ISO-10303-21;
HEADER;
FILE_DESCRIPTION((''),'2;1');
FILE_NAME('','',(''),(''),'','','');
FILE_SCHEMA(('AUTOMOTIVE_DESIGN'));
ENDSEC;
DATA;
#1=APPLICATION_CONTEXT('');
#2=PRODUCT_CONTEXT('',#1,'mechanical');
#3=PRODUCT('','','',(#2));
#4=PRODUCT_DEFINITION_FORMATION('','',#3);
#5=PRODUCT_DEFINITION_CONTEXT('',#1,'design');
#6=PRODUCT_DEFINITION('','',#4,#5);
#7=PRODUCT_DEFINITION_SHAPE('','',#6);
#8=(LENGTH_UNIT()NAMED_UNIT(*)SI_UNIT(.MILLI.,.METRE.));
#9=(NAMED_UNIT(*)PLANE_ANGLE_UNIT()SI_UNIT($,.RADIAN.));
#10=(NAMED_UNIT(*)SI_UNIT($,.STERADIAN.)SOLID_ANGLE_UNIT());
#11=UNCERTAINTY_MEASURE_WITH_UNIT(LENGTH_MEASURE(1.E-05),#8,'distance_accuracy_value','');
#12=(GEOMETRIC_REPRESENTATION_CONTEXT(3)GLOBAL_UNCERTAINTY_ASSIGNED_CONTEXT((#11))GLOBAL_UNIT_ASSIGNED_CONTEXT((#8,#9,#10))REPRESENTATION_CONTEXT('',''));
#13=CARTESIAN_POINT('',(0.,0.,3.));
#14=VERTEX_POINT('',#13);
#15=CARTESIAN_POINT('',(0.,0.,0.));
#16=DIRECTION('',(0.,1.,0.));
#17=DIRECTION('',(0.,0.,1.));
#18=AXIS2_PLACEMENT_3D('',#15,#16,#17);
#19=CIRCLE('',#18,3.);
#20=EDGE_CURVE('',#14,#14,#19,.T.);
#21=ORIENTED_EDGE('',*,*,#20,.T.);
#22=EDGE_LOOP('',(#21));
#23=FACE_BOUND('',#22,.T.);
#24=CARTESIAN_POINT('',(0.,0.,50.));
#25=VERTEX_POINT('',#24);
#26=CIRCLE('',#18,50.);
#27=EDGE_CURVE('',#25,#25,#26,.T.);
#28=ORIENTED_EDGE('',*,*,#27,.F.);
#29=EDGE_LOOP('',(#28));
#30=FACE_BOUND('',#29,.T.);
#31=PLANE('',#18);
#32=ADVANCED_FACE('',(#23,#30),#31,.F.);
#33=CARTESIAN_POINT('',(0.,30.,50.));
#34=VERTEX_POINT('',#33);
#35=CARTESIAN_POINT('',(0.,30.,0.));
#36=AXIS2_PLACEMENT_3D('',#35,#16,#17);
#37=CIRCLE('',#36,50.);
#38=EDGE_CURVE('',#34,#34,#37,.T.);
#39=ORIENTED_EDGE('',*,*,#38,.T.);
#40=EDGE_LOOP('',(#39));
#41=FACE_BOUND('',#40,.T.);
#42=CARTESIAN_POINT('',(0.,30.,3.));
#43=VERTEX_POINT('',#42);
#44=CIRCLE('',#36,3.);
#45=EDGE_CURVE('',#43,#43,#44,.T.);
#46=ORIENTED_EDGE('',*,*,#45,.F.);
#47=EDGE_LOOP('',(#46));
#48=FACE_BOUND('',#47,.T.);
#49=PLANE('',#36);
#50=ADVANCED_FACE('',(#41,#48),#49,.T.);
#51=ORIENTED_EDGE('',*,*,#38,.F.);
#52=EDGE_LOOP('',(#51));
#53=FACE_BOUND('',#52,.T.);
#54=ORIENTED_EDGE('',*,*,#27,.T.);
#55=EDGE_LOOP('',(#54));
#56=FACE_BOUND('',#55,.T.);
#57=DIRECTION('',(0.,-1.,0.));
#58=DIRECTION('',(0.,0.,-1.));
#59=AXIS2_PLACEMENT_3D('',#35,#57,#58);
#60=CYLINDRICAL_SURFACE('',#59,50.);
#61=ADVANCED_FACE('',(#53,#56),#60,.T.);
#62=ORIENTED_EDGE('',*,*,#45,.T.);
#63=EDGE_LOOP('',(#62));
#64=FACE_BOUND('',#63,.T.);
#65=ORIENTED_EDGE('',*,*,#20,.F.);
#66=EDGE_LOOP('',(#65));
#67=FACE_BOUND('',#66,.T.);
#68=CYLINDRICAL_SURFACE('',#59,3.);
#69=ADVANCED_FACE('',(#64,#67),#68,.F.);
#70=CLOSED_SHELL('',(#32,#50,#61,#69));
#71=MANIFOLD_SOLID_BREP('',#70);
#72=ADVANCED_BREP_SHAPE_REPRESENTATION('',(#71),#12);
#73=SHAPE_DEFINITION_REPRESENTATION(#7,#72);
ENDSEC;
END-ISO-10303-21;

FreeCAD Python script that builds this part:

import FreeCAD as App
import Part
import Sketcher

V = App.Vector
Q = App.Units.Quantity

doc = App.newDocument("Part")
params = doc.addObject("Spreadsheet::Sheet", "Params")
for row, (alias, value) in enumerate([
    ("sketch1_diameter", "100 mm"),
    ("sketch1_diameter2", "6 mm"),
    ("pad1_length", "30 mm"),
], start=1):
    params.set(f"A{row}", alias)
    params.set(f"B{row}", "=" + value)
    params.setAlias(f"B{row}", alias)

body = doc.addObject("PartDesign::Body", "Body")

sketch1 = doc.addObject("Sketcher::SketchObject", "Sketch")
body.addObject(sketch1)
sketch1.AttachmentSupport = (doc.XZ_Plane, [""])
sketch1.MapMode = "FlatFace"
sketch1.addGeometry([
    Part.Circle(V(0, 0, 0), V(0, 0, 1), 50),
    Part.Circle(V(0, 0, 0), V(0, 0, 1), 3),
], False)
sketch1.addConstraint([
    Sketcher.Constraint("Coincident", 0, 3, -1, 1),
    Sketcher.Constraint("Coincident", 1, 3, -1, 1),
    Sketcher.Constraint("Diameter", 0, Q("100 mm")),
    Sketcher.Constraint("Diameter", 1, Q("6 mm")),
])
sketch1.setExpression("Constraints[2]", "Params.sketch1_diameter")
sketch1.setExpression("Constraints[3]", "Params.sketch1_diameter2")
pad1 = doc.addObject("PartDesign::Pad", "Pad")
body.addObject(pad1)
pad1.Profile = sketch1
pad1.setExpression("Length", "Params.pad1_length")
pad1.Reversed = True

doc.recompute()
